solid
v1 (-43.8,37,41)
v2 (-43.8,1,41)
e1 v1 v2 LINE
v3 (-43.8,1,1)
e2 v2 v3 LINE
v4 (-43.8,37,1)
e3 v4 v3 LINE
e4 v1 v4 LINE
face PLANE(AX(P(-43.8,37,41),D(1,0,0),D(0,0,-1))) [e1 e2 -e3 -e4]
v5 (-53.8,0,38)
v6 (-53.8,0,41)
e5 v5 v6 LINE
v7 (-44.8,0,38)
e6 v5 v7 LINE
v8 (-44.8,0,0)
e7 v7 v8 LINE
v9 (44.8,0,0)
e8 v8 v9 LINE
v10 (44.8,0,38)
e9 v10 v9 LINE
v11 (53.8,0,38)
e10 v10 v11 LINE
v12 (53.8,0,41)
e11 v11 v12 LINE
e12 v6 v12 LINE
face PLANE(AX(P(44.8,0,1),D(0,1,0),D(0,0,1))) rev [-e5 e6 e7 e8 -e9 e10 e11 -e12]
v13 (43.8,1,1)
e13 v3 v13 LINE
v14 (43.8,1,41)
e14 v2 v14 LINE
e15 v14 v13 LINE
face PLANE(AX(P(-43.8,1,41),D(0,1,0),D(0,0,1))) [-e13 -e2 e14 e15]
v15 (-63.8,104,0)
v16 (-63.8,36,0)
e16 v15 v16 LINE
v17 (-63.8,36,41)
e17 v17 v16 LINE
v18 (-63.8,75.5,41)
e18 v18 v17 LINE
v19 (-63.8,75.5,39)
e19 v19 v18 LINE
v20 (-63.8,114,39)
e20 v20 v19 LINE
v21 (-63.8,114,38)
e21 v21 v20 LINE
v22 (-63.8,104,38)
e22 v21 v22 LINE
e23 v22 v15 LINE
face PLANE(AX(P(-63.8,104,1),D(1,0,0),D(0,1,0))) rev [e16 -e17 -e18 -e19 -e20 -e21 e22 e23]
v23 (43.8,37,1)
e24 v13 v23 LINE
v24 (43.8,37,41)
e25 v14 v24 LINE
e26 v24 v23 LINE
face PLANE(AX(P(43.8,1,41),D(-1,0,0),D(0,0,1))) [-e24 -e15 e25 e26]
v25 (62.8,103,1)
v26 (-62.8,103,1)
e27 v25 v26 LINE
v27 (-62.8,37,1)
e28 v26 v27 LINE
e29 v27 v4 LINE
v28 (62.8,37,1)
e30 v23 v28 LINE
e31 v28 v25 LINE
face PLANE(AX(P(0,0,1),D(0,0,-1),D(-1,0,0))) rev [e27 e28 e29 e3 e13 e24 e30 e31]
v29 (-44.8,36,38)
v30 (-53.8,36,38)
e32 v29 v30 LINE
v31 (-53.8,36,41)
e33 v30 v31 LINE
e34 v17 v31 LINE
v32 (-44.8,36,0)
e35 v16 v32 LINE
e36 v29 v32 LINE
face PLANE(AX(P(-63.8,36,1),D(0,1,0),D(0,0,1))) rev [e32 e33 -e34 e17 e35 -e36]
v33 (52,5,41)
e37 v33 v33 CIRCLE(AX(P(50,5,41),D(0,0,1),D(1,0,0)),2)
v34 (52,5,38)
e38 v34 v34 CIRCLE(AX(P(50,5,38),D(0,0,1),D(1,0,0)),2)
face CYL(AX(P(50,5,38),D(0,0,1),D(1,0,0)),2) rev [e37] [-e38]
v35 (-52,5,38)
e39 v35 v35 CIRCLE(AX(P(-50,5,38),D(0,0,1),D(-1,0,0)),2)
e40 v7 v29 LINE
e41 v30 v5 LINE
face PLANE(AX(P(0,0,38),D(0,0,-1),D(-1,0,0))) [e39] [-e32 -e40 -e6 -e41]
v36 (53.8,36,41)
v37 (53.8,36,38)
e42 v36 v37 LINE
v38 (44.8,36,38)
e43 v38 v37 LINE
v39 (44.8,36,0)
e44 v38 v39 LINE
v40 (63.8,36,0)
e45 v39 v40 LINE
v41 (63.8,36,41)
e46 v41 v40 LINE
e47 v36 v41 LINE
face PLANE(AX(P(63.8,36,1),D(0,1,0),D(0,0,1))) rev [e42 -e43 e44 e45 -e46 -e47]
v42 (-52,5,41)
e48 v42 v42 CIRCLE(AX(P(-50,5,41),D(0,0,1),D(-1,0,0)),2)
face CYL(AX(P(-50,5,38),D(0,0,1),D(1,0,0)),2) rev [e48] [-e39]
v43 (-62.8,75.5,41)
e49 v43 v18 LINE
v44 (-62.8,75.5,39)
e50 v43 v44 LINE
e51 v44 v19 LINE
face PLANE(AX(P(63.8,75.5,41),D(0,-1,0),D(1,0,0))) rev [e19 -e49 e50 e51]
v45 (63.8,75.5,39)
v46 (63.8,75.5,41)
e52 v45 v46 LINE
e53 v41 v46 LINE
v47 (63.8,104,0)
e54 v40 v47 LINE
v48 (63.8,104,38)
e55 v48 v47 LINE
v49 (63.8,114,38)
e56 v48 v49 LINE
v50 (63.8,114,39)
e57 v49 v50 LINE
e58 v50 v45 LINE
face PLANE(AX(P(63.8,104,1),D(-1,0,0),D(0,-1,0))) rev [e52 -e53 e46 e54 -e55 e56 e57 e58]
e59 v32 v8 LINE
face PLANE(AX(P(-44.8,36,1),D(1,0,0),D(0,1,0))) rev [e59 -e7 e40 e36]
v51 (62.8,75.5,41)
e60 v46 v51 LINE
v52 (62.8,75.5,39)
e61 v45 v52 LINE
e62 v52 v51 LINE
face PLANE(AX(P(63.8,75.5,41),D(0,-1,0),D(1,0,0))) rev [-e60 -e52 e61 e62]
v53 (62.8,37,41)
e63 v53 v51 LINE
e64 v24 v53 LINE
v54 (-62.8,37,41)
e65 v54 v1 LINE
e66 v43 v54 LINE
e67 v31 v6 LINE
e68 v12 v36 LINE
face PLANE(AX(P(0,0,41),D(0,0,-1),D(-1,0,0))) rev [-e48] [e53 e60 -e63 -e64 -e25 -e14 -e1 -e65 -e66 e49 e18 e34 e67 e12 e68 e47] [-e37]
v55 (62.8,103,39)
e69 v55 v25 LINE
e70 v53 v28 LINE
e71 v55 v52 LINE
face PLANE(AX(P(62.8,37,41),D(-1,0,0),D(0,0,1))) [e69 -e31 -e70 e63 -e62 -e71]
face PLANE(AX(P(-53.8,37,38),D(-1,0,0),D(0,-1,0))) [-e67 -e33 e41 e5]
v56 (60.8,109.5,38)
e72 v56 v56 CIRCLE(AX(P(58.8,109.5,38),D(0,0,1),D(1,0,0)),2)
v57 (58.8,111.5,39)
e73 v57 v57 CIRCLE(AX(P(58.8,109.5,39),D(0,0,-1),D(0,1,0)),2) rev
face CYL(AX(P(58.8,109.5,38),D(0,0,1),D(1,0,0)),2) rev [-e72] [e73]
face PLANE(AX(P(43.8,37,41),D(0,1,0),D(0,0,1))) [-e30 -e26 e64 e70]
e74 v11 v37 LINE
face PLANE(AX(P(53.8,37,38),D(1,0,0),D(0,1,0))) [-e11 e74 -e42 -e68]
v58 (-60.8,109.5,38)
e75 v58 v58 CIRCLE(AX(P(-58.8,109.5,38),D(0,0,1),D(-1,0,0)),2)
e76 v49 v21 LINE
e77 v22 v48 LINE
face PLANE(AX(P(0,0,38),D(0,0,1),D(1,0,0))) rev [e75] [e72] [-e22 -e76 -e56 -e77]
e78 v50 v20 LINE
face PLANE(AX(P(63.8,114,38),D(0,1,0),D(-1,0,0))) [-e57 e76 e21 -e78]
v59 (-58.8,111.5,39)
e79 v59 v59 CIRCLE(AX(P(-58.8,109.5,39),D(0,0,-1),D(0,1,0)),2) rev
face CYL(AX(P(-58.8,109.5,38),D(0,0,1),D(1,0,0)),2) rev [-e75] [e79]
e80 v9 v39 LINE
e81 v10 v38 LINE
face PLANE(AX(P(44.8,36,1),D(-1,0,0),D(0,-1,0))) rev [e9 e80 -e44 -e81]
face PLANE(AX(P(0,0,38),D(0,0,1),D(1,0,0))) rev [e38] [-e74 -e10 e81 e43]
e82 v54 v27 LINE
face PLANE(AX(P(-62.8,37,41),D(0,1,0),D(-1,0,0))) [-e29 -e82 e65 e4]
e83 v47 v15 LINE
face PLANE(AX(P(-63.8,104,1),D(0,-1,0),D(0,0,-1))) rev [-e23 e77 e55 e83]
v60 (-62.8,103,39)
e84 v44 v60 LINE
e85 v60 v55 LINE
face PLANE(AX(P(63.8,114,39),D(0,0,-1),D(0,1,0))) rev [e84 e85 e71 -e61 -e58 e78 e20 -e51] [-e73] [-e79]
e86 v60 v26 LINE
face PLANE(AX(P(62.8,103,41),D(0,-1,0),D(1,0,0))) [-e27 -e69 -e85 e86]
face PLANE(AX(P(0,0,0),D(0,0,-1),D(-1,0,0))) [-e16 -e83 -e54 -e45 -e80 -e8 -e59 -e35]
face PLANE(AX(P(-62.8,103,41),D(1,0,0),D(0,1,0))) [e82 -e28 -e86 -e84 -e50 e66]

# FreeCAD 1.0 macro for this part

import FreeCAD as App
import Part
import Sketcher

doc = App.newDocument("Part")
body = doc.addObject("PartDesign::Body", "Body")

# Sketch on XY plane
sketch1 = body.newObject("Sketcher::SketchObject", "Sketch")
sketch1.AttachmentSupport = (doc.getObject("XY_Plane"), [""])
sketch1.MapMode = "FlatFace"
sketch1.addGeometry(Part.LineSegment(App.Vector(63.8, 104, 0), App.Vector(-63.8, 104, 0)), False)
sketch1.addGeometry(Part.LineSegment(App.Vector(-63.8, 104, 0), App.Vector(-63.8, 36, 0)), False)
sketch1.addGeometry(Part.LineSegment(App.Vector(-63.8, 36, 0), App.Vector(-44.8, 36, 0)), False)
sketch1.addGeometry(Part.LineSegment(App.Vector(-44.8, 36, 0), App.Vector(-44.8, 0, 0)), False)
sketch1.addGeometry(Part.LineSegment(App.Vector(-44.8, 0, 0), App.Vector(44.8, 0, 0)), False)
sketch1.addGeometry(Part.LineSegment(App.Vector(44.8, 0, 0), App.Vector(44.8, 36, 0)), False)
sketch1.addGeometry(Part.LineSegment(App.Vector(44.8, 36, 0), App.Vector(63.8, 36, 0)), False)
sketch1.addGeometry(Part.LineSegment(App.Vector(63.8, 36, 0), App.Vector(63.8, 104, 0)), False)
sketch1.addConstraint(Sketcher.Constraint("Coincident", 0, 2, 1, 1))
sketch1.addConstraint(Sketcher.Constraint("Coincident", 1, 2, 2, 1))
sketch1.addConstraint(Sketcher.Constraint("Coincident", 2, 2, 3, 1))
sketch1.addConstraint(Sketcher.Constraint("Coincident", 3, 2, 4, 1))
sketch1.addConstraint(Sketcher.Constraint("Coincident", 4, 2, 5, 1))
sketch1.addConstraint(Sketcher.Constraint("Coincident", 5, 2, 6, 1))
sketch1.addConstraint(Sketcher.Constraint("Coincident", 6, 2, 7, 1))
sketch1.addConstraint(Sketcher.Constraint("Coincident", 7, 2, 0, 1))
sketch1.addConstraint(Sketcher.Constraint("Horizontal", 0))
sketch1.addConstraint(Sketcher.Constraint("Vertical", 1))
sketch1.addConstraint(Sketcher.Constraint("Horizontal", 2))
sketch1.addConstraint(Sketcher.Constraint("Vertical", 3))
sketch1.addConstraint(Sketcher.Constraint("Horizontal", 4))
sketch1.addConstraint(Sketcher.Constraint("Vertical", 5))
sketch1.addConstraint(Sketcher.Constraint("Horizontal", 6))
sketch1.addConstraint(Sketcher.Constraint("Vertical", 7))
sketch1.addConstraint(Sketcher.Constraint("Symmetric", 3, 2, 4, 2, -1, 1))
sketch1.addConstraint(Sketcher.Constraint("Symmetric", 1, 2, 6, 2, -2))
sketch1.addConstraint(Sketcher.Constraint("DistanceX", 2, 1, 2, 2, 19.0))
sketch1.addConstraint(Sketcher.Constraint("DistanceY", 1, 2, 1, 1, 68.0))
sketch1.addConstraint(Sketcher.Constraint("DistanceY", 3, 2, 3, 1, 36.0))
sketch1.addConstraint(Sketcher.Constraint("DistanceX", 0, 2, 0, 1, 127.6))
pad1 = body.newObject("PartDesign::Pad", "Pad")
pad1.Profile = sketch1
pad1.Length = 1

# Sketch on XY plane
sketch2 = body.newObject("Sketcher::SketchObject", "Sketch001")
sketch2.AttachmentSupport = (doc.getObject("XY_Plane"), [""])
sketch2.MapMode = "FlatFace"
sketch2.AttachmentOffset = App.Placement(App.Vector(0, 0, 1), App.Rotation())
sketch2.addGeometry(Part.LineSegment(App.Vector(-44.8, 36, 0), App.Vector(-44.8, 0, 0)), False)
sketch2.addGeometry(Part.LineSegment(App.Vector(-44.8, 0, 0), App.Vector(44.8, 0, 0)), False)
sketch2.addGeometry(Part.LineSegment(App.Vector(44.8, 0, 0), App.Vector(44.8, 36, 0)), False)
sketch2.addGeometry(Part.LineSegment(App.Vector(44.8, 36, 0), App.Vector(63.8, 36, 0)), False)
sketch2.addGeometry(Part.LineSegment(App.Vector(63.8, 36, 0), App.Vector(63.8, 104, 0)), False)
sketch2.addGeometry(Part.LineSegment(App.Vector(63.8, 104, 0), App.Vector(-63.8, 104, 0)), False)
sketch2.addGeometry(Part.LineSegment(App.Vector(-63.8, 104, 0), App.Vector(-63.8, 36, 0)), False)
sketch2.addGeometry(Part.LineSegment(App.Vector(-63.8, 36, 0), App.Vector(-44.8, 36, 0)), False)
sketch2.addGeometry(Part.LineSegment(App.Vector(-62.8, 103, 0), App.Vector(62.8, 103, 0)), False)
sketch2.addGeometry(Part.LineSegment(App.Vector(62.8, 103, 0), App.Vector(62.8, 37, 0)), False)
sketch2.addGeometry(Part.LineSegment(App.Vector(62.8, 37, 0), App.Vector(43.8, 37, 0)), False)
sketch2.addGeometry(Part.LineSegment(App.Vector(43.8, 37, 0), App.Vector(43.8, 1, 0)), False)
sketch2.addGeometry(Part.LineSegment(App.Vector(43.8, 1, 0), App.Vector(-43.8, 1, 0)), False)
sketch2.addGeometry(Part.LineSegment(App.Vector(-43.8, 1, 0), App.Vector(-43.8, 37, 0)), False)
sketch2.addGeometry(Part.LineSegment(App.Vector(-43.8, 37, 0), App.Vector(-62.8, 37, 0)), False)
sketch2.addGeometry(Part.LineSegment(App.Vector(-62.8, 37, 0), App.Vector(-62.8, 103, 0)), False)
sketch2.addConstraint(Sketcher.Constraint("Coincident", 0, 2, 1, 1))
sketch2.addConstraint(Sketcher.Constraint("Coincident", 1, 2, 2, 1))
sketch2.addConstraint(Sketcher.Constraint("Coincident", 2, 2, 3, 1))
sketch2.addConstraint(Sketcher.Constraint("Coincident", 3, 2, 4, 1))
sketch2.addConstraint(Sketcher.Constraint("Coincident", 4, 2, 5, 1))
sketch2.addConstraint(Sketcher.Constraint("Coincident", 5, 2, 6, 1))
sketch2.addConstraint(Sketcher.Constraint("Coincident", 6, 2, 7, 1))
sketch2.addConstraint(Sketcher.Constraint("Coincident", 7, 2, 0, 1))
sketch2.addConstraint(Sketcher.Constraint("Coincident", 8, 2, 9, 1))
sketch2.addConstraint(Sketcher.Constraint("Coincident", 9, 2, 10, 1))
sketch2.addConstraint(Sketcher.Constraint("Coincident", 10, 2, 11, 1))
sketch2.addConstraint(Sketcher.Constraint("Coincident", 11, 2, 12, 1))
sketch2.addConstraint(Sketcher.Constraint("Coincident", 12, 2, 13, 1))
sketch2.addConstraint(Sketcher.Constraint("Coincident", 13, 2, 14, 1))
sketch2.addConstraint(Sketcher.Constraint("Coincident", 14, 2, 15, 1))
sketch2.addConstraint(Sketcher.Constraint("Coincident", 15, 2, 8, 1))
sketch2.addConstraint(Sketcher.Constraint("Vertical", 0))
sketch2.addConstraint(Sketcher.Constraint("Horizontal", 1))
sketch2.addConstraint(Sketcher.Constraint("Vertical", 2))
sketch2.addConstraint(Sketcher.Constraint("Horizontal", 3))
sketch2.addConstraint(Sketcher.Constraint("Vertical", 4))
sketch2.addConstraint(Sketcher.Constraint("Horizontal", 5))
sketch2.addConstraint(Sketcher.Constraint("Vertical", 6))
sketch2.addConstraint(Sketcher.Constraint("Horizontal", 7))
sketch2.addConstraint(Sketcher.Constraint("Horizontal", 8))
sketch2.addConstraint(Sketcher.Constraint("Vertical", 9))
sketch2.addConstraint(Sketcher.Constraint("Horizontal", 10))
sketch2.addConstraint(Sketcher.Constraint("Vertical", 11))
sketch2.addConstraint(Sketcher.Constraint("Horizontal", 12))
sketch2.addConstraint(Sketcher.Constraint("Vertical", 13))
sketch2.addConstraint(Sketcher.Constraint("Horizontal", 14))
sketch2.addConstraint(Sketcher.Constraint("Vertical", 15))
sketch2.addConstraint(Sketcher.Constraint("Symmetric", 0, 2, 1, 2, -1, 1))
sketch2.addConstraint(Sketcher.Constraint("Symmetric", 3, 2, 6, 2, -2))
sketch2.addConstraint(Sketcher.Constraint("Symmetric", 10, 2, 13, 2, -2))
sketch2.addConstraint(Sketcher.Constraint("Equal", 7, 10))
sketch2.addConstraint(Sketcher.Constraint("Equal", 10, 14))
sketch2.addConstraint(Sketcher.Constraint("Equal", 2, 11))
sketch2.addConstraint(Sketcher.Constraint("DistanceX", 3, 1, 3, 2, 19.0))
sketch2.addConstraint(Sketcher.Constraint("DistanceY", 0, 2, 0, 1, 36.0))
sketch2.addConstraint(Sketcher.Constraint("DistanceY", 4, 1, 4, 2, 68.0))
sketch2.addConstraint(Sketcher.Constraint("DistanceY", 9, 2, 9, 1, 66.0))
sketch2.addConstraint(Sketcher.Constraint("DistanceX", 1, 1, 1, 2, 89.6))
sketch2.addConstraint(Sketcher.Constraint("DistanceX", 8, 1, 8, 2, 125.6))
sketch2.addConstraint(Sketcher.Constraint("DistanceY", -1, 1, 8, 2, 103.0))
pad2 = body.newObject("PartDesign::Pad", "Pad001")
pad2.Profile = sketch2
pad2.Length = 40

# Sketch on XY plane
sketch3 = body.newObject("Sketcher::SketchObject", "Sketch002")
sketch3.AttachmentSupport = (doc.getObject("XY_Plane"), [""])
sketch3.MapMode = "FlatFace"
sketch3.AttachmentOffset = App.Placement(App.Vector(0, 0, 41), App.Rotation())
sketch3.addGeometry(Part.LineSegment(App.Vector(-63.8, 114, 0), App.Vector(-63.8, 104, 0)), False)
sketch3.addGeometry(Part.LineSegment(App.Vector(-63.8, 104, 0), App.Vector(63.8, 104, 0)), False)
sketch3.addGeometry(Part.LineSegment(App.Vector(63.8, 104, 0), App.Vector(63.8, 114, 0)), False)
sketch3.addGeometry(Part.LineSegment(App.Vector(63.8, 114, 0), App.Vector(-63.8, 114, 0)), False)
sketch3.addGeometry(Part.Circle(App.Vector(-58.8, 109.5, 0), App.Vector(0, 0, 1), 2), False)
sketch3.addGeometry(Part.Circle(App.Vector(58.8, 109.5, 0), App.Vector(0, 0, 1), 2), False)
sketch3.addGeometry(Part.LineSegment(App.Vector(43.8, 37, 0), App.Vector(43.8, 0, 0)), False)
sketch3.addGeometry(Part.LineSegment(App.Vector(43.8, 0, 0), App.Vector(53.8, 0, 0)), False)
sketch3.addGeometry(Part.LineSegment(App.Vector(53.8, 0, 0), App.Vector(53.8, 37, 0)), False)
sketch3.addGeometry(Part.LineSegment(App.Vector(53.8, 37, 0), App.Vector(43.8, 37, 0)), False)
sketch3.addGeometry(Part.Circle(App.Vector(50, 5, 0), App.Vector(0, 0, 1), 2), False)
sketch3.addGeometry(Part.LineSegment(App.Vector(-53.8, 37, 0), App.Vector(-53.8, 0, 0)), False)
sketch3.addGeometry(Part.LineSegment(App.Vector(-53.8, 0, 0), App.Vector(-43.8, 0, 0)), False)
sketch3.addGeometry(Part.LineSegment(App.Vector(-43.8, 0, 0), App.Vector(-43.8, 37, 0)), False)
sketch3.addGeometry(Part.LineSegment(App.Vector(-43.8, 37, 0), App.Vector(-53.8, 37, 0)), False)
sketch3.addGeometry(Part.Circle(App.Vector(-50, 5, 0), App.Vector(0, 0, 1), 2), False)
sketch3.addConstraint(Sketcher.Constraint("Coincident", 0, 2, 1, 1))
sketch3.addConstraint(Sketcher.Constraint("Coincident", 1, 2, 2, 1))
sketch3.addConstraint(Sketcher.Constraint("Coincident", 2, 2, 3, 1))
sketch3.addConstraint(Sketcher.Constraint("Coincident", 3, 2, 0, 1))
sketch3.addConstraint(Sketcher.Constraint("Coincident", 6, 2, 7, 1))
sketch3.addConstraint(Sketcher.Constraint("Coincident", 7, 2, 8, 1))
sketch3.addConstraint(Sketcher.Constraint("Coincident", 8, 2, 9, 1))
sketch3.addConstraint(Sketcher.Constraint("Coincident", 9, 2, 6, 1))
sketch3.addConstraint(Sketcher.Constraint("Coincident", 11, 2, 12, 1))
sketch3.addConstraint(Sketcher.Constraint("Coincident", 12, 2, 13, 1))
sketch3.addConstraint(Sketcher.Constraint("Coincident", 13, 2, 14, 1))
sketch3.addConstraint(Sketcher.Constraint("Coincident", 14, 2, 11, 1))
sketch3.addConstraint(Sketcher.Constraint("Vertical", 0))
sketch3.addConstraint(Sketcher.Constraint("Horizontal", 1))
sketch3.addConstraint(Sketcher.Constraint("Vertical", 2))
sketch3.addConstraint(Sketcher.Constraint("Horizontal", 3))
sketch3.addConstraint(Sketcher.Constraint("Vertical", 6))
sketch3.addConstraint(Sketcher.Constraint("Horizontal", 7))
sketch3.addConstraint(Sketcher.Constraint("Vertical", 8))
sketch3.addConstraint(Sketcher.Constraint("Horizontal", 9))
sketch3.addConstraint(Sketcher.Constraint("Vertical", 11))
sketch3.addConstraint(Sketcher.Constraint("Horizontal", 12))
sketch3.addConstraint(Sketcher.Constraint("Vertical", 13))
sketch3.addConstraint(Sketcher.Constraint("Horizontal", 14))
sketch3.addConstraint(Sketcher.Constraint("Equal", 4, 5))
sketch3.addConstraint(Sketcher.Constraint("Equal", 5, 10))
sketch3.addConstraint(Sketcher.Constraint("Equal", 10, 15))
sketch3.addConstraint(Sketcher.Constraint("Symmetric", 7, 2, 11, 2, -1, 1))
sketch3.addConstraint(Sketcher.Constraint("Symmetric", 4, 3, 5, 3, -2))
sketch3.addConstraint(Sketcher.Constraint("Symmetric", 10, 3, 15, 3, -2))
sketch3.addConstraint(Sketcher.Constraint("Symmetric", 6, 2, 12, 2, -2))
sketch3.addConstraint(Sketcher.Constraint("Horizontal", 9, 2, 13, 2))
sketch3.addConstraint(Sketcher.Constraint("Equal", 14, 0))
sketch3.addConstraint(Sketcher.Constraint("Diameter", 4, 4.0))
sketch3.addConstraint(Sketcher.Constraint("DistanceX", 7, 1, 7, 2, 10.0))
sketch3.addConstraint(Sketcher.Constraint("DistanceY", 6, 2, 6, 1, 37.0))
sketch3.addConstraint(Sketcher.Constraint("DistanceX", 1, 1, 1, 2, 127.6))
sketch3.addConstraint(Sketcher.Constraint("DistanceX", -1, 1, 10, 3, 50.0))
sketch3.addConstraint(Sketcher.Constraint("DistanceY", -1, 1, 10, 3, 5.0))
sketch3.addConstraint(Sketcher.Constraint("DistanceY", -1, 1, 0, 2, 104.0))
sketch3.addConstraint(Sketcher.Constraint("DistanceX", 0, 2, 4, 3, 5.0))
sketch3.addConstraint(Sketcher.Constraint("DistanceX", 5, 3, 1, 2, 5.0))
sketch3.addConstraint(Sketcher.Constraint("DistanceX", 6, 2, 1, 2, 20.0))
sketch3.addConstraint(Sketcher.Constraint("DistanceY", -1, 1, 4, 3, 109.5))
pad3 = body.newObject("PartDesign::Pad", "Pad002")
pad3.Profile = sketch3
pad3.Length = 3
pad3.Reversed = True

# Sketch on YZ plane
sketch4 = body.newObject("Sketcher::SketchObject", "Sketch003")
sketch4.AttachmentSupport = (doc.getObject("YZ_Plane"), [""])
sketch4.MapMode = "FlatFace"
sketch4.AttachmentOffset = App.Placement(App.Vector(0, 0, -63.8), App.Rotation())
sketch4.addGeometry(Part.LineSegment(App.Vector(114, 39, 0), App.Vector(75.5, 39, 0)), False)
sketch4.addGeometry(Part.LineSegment(App.Vector(75.5, 39, 0), App.Vector(75.5, 41, 0)), False)
sketch4.addGeometry(Part.LineSegment(App.Vector(75.5, 41, 0), App.Vector(114, 41, 0)), False)
sketch4.addGeometry(Part.LineSegment(App.Vector(114, 41, 0), App.Vector(114, 39, 0)), False)
sketch4.addConstraint(Sketcher.Constraint("Coincident", 0, 2, 1, 1))
sketch4.addConstraint(Sketcher.Constraint("Coincident", 1, 2, 2, 1))
sketch4.addConstraint(Sketcher.Constraint("Coincident", 2, 2, 3, 1))
sketch4.addConstraint(Sketcher.Constraint("Coincident", 3, 2, 0, 1))
sketch4.addConstraint(Sketcher.Constraint("Horizontal", 0))
sketch4.addConstraint(Sketcher.Constraint("Vertical", 1))
sketch4.addConstraint(Sketcher.Constraint("Horizontal", 2))
sketch4.addConstraint(Sketcher.Constraint("Vertical", 3))
sketch4.addConstraint(Sketcher.Constraint("DistanceY", 1, 1, 1, 2, 2.0))
sketch4.addConstraint(Sketcher.Constraint("DistanceX", 0, 2, 0, 1, 38.5))
sketch4.addConstraint(Sketcher.Constraint("DistanceY", -1, 1, 0, 2, 39.0))
sketch4.addConstraint(Sketcher.Constraint("DistanceX", -1, 1, 2, 2, 114.0))
pocket1 = body.newObject("PartDesign::Pocket", "Pocket")
pocket1.Profile = sketch4
pocket1.Type = "ThroughAll"
pocket1.Reversed = True

doc.recompute()
